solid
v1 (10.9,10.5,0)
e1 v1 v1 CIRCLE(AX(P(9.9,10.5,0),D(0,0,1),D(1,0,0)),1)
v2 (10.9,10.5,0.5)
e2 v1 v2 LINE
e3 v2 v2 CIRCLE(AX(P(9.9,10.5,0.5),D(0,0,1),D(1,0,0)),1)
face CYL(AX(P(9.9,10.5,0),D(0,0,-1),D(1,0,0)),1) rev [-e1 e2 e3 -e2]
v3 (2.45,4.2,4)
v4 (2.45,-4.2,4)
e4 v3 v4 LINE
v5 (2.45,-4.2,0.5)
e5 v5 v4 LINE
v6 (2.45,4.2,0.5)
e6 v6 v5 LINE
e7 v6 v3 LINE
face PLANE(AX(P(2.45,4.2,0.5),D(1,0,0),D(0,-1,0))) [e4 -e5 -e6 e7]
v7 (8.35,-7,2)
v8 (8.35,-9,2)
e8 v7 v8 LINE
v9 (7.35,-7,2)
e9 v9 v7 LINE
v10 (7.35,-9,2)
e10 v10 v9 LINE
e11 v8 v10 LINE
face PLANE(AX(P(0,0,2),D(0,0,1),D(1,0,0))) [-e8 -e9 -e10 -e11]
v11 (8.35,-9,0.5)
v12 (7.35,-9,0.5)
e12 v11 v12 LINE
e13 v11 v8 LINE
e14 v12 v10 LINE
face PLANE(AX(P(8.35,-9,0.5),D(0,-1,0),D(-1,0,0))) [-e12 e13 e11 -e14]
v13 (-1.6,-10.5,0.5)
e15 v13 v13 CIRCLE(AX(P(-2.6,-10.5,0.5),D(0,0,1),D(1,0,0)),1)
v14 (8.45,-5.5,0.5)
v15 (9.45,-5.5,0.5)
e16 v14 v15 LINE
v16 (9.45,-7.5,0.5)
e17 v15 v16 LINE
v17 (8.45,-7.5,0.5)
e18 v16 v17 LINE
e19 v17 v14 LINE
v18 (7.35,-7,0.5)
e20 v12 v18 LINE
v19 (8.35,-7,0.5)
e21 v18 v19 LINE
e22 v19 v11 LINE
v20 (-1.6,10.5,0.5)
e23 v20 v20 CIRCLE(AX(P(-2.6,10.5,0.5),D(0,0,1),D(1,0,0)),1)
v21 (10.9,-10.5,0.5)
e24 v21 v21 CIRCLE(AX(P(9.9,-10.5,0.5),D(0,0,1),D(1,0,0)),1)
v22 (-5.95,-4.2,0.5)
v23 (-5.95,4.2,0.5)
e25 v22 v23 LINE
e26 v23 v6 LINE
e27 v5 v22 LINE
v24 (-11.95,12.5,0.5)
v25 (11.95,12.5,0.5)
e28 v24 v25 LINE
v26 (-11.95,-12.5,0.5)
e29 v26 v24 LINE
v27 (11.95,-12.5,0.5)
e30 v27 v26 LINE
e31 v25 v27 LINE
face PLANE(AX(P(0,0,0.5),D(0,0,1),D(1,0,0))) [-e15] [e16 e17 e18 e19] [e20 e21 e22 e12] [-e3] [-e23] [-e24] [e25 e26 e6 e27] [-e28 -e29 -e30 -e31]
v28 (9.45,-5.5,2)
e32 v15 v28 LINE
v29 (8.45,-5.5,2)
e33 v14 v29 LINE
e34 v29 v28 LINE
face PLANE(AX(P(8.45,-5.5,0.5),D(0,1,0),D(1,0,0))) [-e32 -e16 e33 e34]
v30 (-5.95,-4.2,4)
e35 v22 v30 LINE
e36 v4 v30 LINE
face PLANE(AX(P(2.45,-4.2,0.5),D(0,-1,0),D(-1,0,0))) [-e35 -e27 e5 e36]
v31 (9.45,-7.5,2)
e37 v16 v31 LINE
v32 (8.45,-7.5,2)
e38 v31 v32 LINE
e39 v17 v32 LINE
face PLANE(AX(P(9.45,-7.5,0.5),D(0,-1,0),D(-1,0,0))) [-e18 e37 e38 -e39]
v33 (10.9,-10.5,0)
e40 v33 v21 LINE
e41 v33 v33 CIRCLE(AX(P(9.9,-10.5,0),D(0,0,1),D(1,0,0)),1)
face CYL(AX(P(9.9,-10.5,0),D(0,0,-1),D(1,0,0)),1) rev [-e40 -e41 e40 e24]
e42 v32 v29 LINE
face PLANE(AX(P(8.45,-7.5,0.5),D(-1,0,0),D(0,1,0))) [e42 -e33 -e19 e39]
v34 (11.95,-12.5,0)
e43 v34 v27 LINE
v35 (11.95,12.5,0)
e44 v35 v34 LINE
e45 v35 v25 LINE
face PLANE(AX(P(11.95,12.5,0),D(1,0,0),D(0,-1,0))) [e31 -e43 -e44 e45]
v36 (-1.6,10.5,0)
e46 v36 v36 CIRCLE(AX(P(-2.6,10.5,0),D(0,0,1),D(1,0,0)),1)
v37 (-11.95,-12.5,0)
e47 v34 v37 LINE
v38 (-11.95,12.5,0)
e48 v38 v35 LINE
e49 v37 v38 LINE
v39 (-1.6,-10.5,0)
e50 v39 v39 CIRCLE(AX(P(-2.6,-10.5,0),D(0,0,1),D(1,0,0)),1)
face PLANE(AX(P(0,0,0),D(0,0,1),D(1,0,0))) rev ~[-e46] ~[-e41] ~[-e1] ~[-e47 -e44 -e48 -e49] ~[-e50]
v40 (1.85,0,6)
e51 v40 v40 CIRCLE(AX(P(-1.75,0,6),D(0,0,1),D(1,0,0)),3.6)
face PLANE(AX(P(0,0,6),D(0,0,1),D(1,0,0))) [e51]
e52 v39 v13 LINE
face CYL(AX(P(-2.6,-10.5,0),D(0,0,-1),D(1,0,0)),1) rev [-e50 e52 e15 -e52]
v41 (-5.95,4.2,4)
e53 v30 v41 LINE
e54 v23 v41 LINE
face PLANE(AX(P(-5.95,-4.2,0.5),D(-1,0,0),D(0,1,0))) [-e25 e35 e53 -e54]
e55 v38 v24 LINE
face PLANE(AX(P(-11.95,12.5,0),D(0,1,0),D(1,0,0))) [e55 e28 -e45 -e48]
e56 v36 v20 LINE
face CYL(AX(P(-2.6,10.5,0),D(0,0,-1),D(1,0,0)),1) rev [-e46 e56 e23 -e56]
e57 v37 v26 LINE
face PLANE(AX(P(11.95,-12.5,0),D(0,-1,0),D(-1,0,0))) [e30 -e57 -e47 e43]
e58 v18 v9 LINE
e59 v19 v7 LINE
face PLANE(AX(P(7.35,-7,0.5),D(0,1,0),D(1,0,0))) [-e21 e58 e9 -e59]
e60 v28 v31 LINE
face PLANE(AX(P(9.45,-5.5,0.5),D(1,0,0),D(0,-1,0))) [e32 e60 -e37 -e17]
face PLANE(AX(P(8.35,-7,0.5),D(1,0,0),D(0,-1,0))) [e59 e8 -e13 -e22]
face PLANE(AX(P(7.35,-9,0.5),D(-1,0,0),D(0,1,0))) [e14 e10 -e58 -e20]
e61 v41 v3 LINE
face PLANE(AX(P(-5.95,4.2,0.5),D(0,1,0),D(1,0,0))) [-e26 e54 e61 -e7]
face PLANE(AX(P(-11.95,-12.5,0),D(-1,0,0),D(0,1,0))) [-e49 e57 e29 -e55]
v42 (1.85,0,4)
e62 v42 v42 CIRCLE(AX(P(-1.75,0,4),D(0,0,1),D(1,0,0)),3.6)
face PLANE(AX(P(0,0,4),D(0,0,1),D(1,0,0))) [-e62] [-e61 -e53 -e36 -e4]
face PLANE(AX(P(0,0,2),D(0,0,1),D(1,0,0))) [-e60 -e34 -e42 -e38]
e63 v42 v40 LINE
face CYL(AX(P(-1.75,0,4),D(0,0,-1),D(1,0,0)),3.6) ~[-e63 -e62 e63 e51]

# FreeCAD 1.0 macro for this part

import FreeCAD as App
import Part
import Sketcher
from FreeCAD import Vector


def add_polygon(sketch, points):
    """Adds a closed chain of lines whose ends are joined by coincident constraints."""
    first, n = sketch.GeometryCount, len(points)
    for a, b in zip(points, points[1:] + points[:1]):
        sketch.addGeometry(Part.LineSegment(App.Vector(*a, 0), App.Vector(*b, 0)), False)
    for i in range(n):
        sketch.addConstraint(Sketcher.Constraint("Coincident", first + i, 2, first + (i + 1) % n, 1))

doc = App.newDocument("Part")
body = doc.addObject("PartDesign::Body", "Body")

sketch1 = doc.addObject("Sketcher::SketchObject", "Sketch")
body.addObject(sketch1)
sketch1.AttachmentSupport = (doc.XY_Plane, [""])
sketch1.MapMode = "FlatFace"
add_polygon(sketch1, [(11.9, 12.5), (-11.9, 12.5), (-11.9, -12.5), (11.9, -12.5)])
sketch1.addGeometry(Part.Circle(Vector(-2.6, -10.5, 0), Vector(0, 0, 1), 1), False)
sketch1.addGeometry(Part.Circle(Vector(9.9, -10.5, 0), Vector(0, 0, 1), 1), False)
sketch1.addGeometry(Part.Circle(Vector(-2.6, 10.5, 0), Vector(0, 0, 1), 1), False)
sketch1.addGeometry(Part.Circle(Vector(9.9, 10.5, 0), Vector(0, 0, 1), 1), False)
sketch1.addConstraint([
    Sketcher.Constraint("Horizontal", 0),
    Sketcher.Constraint("Vertical", 1),
    Sketcher.Constraint("Horizontal", 2),
    Sketcher.Constraint("Vertical", 3),
    Sketcher.Constraint("Equal", 4, 5),
    Sketcher.Constraint("Equal", 5, 6),
    Sketcher.Constraint("Equal", 6, 7),
    Sketcher.Constraint("Symmetric", 0, 2, 2, 2, -1, 1),
    Sketcher.Constraint("Symmetric", 4, 3, 6, 3, -1),
    Sketcher.Constraint("Symmetric", 5, 3, 7, 3, -1),
    Sketcher.Constraint("Horizontal", 4, 3, 5, 3),
    Sketcher.Constraint("Diameter", 4, 2.0),
    Sketcher.Constraint("DistanceY", 1, 2, 1, 1, 25.0),
    Sketcher.Constraint("DistanceX", 0, 2, 0, 1, 23.9),
    Sketcher.Constraint("DistanceY", 6, 3, 0, 2, 2.0),
    Sketcher.Constraint("DistanceX", 0, 2, 6, 3, 9.35),
    Sketcher.Constraint("DistanceX", 0, 2, 7, 3, 21.85),
])
pad1 = doc.addObject("PartDesign::Pad", "Pad")
body.addObject(pad1)
pad1.Profile = sketch1
pad1.Length = 0.5

sketch2 = doc.addObject("Sketcher::SketchObject", "Sketch001")
body.addObject(sketch2)
sketch2.AttachmentSupport = (doc.XY_Plane, [""])
sketch2.MapMode = "FlatFace"
sketch2.AttachmentOffset = App.Placement(Vector(0, 0, 0.5), App.Rotation())
add_polygon(sketch2, [(2, 4), (-6, 4), (-6, -4), (2, -4)])
sketch2.addConstraint([
    Sketcher.Constraint("Horizontal", 0),
    Sketcher.Constraint("Vertical", 1),
    Sketcher.Constraint("Horizontal", 2),
    Sketcher.Constraint("Vertical", 3),
    Sketcher.Constraint("Equal", 2, 1),
    Sketcher.Constraint("DistanceX", 0, 2, 0, 1, 8.4),
    Sketcher.Constraint("DistanceY", -1, 1, 0, 2, 4.2),
    Sketcher.Constraint("DistanceX", 0, 2, -1, 1, 5.95),
])
pad2 = doc.addObject("PartDesign::Pad", "Pad001")
body.addObject(pad2)
pad2.Profile = sketch2
pad2.Length = 3.5

sketch3 = doc.addObject("Sketcher::SketchObject", "Sketch002")
body.addObject(sketch3)
sketch3.AttachmentSupport = (doc.XY_Plane, [""])
sketch3.MapMode = "FlatFace"
sketch3.AttachmentOffset = App.Placement(Vector(0, 0, 4), App.Rotation())
sketch3.addGeometry(Part.Circle(Vector(-1.8, 0, 0), Vector(0, 0, 1), 3.6), False)
sketch3.addConstraint([
    Sketcher.Constraint("PointOnObject", 0, 3, -1),
    Sketcher.Constraint("Diameter", 0, 7.2),
    Sketcher.Constraint("DistanceX", 0, 3, -1, 1, 1.75),
])
pad3 = doc.addObject("PartDesign::Pad", "Pad002")
body.addObject(pad3)
pad3.Profile = sketch3
pad3.Length = 2

sketch4 = doc.addObject("Sketcher::SketchObject", "Sketch003")
body.addObject(sketch4)
sketch4.AttachmentSupport = (doc.XY_Plane, [""])
sketch4.MapMode = "FlatFace"
sketch4.AttachmentOffset = App.Placement(Vector(0, 0, 0.5), App.Rotation())
add_polygon(sketch4, [(8.3, -7), (7.3, -7), (7.3, -9), (8.3, -9)])
add_polygon(sketch4, [(9.4, -5.5), (8.4, -5.5), (8.4, -7.5), (9.4, -7.5)])
sketch4.addConstraint([
    Sketcher.Constraint("Horizontal", 0),
    Sketcher.Constraint("Vertical", 1),
    Sketcher.Constraint("Horizontal", 2),
    Sketcher.Constraint("Vertical", 3),
    Sketcher.Constraint("Horizontal", 4),
    Sketcher.Constraint("Vertical", 5),
    Sketcher.Constraint("Horizontal", 6),
    Sketcher.Constraint("Vertical", 7),
    Sketcher.Constraint("Equal", 2, 4),
    Sketcher.Constraint("Equal", 3, 5),
    Sketcher.Constraint("DistanceX", 0, 2, 0, 1, 1.0),
    Sketcher.Constraint("DistanceY", 1, 2, 1, 1, 2.0),
    Sketcher.Constraint("DistanceX", 3, 2, 4, 2, 0.1),
    Sketcher.Constraint("DistanceY", 2, 2, 4, 2, 3.5),
    Sketcher.Constraint("DistanceY", 0, 2, -1, 1, 7.0),
    Sketcher.Constraint("DistanceX", -1, 1, 0, 2, 7.35),
])
pad4 = doc.addObject("PartDesign::Pad", "Pad003")
body.addObject(pad4)
pad4.Profile = sketch4
pad4.Length = 1.5

doc.recompute()
